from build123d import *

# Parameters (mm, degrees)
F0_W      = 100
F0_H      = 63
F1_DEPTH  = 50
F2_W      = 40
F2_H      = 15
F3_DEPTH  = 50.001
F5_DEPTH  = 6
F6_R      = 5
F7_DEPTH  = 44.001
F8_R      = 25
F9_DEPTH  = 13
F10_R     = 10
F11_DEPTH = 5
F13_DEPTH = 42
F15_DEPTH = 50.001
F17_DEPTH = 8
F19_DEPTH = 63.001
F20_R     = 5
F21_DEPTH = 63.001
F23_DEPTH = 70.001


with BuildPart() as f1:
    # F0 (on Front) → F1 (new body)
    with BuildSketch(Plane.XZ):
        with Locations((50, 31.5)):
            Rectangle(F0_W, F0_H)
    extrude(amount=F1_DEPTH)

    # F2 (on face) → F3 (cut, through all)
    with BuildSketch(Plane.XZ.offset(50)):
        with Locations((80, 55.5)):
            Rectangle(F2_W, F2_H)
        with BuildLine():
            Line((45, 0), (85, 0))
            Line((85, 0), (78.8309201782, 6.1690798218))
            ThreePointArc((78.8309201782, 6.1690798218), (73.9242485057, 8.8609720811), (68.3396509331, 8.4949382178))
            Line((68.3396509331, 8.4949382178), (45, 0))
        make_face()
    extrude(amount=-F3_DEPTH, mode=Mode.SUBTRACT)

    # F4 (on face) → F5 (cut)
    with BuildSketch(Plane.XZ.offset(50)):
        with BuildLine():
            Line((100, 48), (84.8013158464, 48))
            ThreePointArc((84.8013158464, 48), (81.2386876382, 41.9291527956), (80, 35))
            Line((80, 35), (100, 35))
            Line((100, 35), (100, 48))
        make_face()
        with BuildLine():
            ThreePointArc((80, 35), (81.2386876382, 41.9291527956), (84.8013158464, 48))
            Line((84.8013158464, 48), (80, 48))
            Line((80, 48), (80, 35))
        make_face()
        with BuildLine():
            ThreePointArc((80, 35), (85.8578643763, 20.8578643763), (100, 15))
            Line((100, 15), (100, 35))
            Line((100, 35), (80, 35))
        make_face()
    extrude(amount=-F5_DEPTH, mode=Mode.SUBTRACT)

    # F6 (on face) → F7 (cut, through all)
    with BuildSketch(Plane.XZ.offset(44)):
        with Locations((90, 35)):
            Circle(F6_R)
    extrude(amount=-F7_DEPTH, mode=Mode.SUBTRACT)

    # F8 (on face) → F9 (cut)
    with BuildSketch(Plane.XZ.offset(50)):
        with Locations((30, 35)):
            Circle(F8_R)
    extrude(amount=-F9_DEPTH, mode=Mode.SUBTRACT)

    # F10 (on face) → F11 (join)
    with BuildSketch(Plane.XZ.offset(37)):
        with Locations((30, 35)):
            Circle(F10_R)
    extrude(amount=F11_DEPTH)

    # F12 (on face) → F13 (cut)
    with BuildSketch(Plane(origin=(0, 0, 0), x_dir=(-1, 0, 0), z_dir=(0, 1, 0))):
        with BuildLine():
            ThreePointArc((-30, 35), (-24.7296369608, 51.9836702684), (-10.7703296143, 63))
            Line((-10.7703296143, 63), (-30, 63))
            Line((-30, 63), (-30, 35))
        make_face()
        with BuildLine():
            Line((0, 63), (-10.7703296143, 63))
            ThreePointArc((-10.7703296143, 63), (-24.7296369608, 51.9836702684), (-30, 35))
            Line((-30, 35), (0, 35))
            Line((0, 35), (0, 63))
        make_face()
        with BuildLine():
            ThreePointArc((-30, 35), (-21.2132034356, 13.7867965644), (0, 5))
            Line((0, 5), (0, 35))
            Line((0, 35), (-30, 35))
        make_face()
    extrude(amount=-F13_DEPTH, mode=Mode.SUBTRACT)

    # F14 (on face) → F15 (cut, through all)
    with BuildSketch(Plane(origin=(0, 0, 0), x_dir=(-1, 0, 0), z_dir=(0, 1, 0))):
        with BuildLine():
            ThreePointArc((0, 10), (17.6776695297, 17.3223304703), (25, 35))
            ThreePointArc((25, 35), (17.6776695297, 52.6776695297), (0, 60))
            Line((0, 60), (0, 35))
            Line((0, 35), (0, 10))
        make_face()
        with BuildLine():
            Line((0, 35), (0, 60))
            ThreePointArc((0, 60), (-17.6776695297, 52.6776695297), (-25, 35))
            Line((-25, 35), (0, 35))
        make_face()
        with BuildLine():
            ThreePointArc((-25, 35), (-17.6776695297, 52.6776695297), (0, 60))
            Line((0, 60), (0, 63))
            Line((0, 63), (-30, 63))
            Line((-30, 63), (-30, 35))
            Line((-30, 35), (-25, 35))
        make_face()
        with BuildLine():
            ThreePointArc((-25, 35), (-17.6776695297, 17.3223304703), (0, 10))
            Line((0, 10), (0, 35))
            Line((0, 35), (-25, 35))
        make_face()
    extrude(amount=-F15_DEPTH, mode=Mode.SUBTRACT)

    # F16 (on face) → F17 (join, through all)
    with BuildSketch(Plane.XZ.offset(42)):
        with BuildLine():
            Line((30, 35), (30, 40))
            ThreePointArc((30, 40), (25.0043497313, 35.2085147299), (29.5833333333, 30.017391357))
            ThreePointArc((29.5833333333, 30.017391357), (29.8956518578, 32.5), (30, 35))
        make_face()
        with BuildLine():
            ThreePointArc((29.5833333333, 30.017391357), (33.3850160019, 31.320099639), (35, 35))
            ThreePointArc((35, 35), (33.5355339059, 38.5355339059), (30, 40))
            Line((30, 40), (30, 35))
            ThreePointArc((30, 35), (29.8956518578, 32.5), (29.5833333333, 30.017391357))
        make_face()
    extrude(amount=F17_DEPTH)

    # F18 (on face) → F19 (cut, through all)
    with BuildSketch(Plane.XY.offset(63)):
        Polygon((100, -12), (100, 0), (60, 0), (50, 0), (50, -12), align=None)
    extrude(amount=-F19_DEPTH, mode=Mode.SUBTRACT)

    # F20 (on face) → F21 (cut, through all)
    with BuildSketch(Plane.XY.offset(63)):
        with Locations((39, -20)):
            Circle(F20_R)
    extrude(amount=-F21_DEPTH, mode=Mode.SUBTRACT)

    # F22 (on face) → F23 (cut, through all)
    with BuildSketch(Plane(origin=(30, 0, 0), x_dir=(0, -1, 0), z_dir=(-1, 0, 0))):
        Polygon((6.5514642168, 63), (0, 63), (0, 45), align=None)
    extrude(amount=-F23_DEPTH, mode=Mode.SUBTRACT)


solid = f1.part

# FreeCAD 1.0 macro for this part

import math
import FreeCAD as App
import Part
import Sketcher
Q = App.Units.Quantity

doc = App.newDocument("Part")
body = doc.addObject("PartDesign::Body", "Body")

sketch1 = body.newObject("Sketcher::SketchObject", "Sketch")
sketch1.AttachmentSupport = (doc.getObject("XZ_Plane"), [""])
sketch1.MapMode = "FlatFace"
sketch1.addGeometry([
    Part.LineSegment(App.Vector(0, 63, 0), App.Vector(0, 0, 0)),
    Part.LineSegment(App.Vector(0, 0, 0), App.Vector(100, 0, 0)),
    Part.LineSegment(App.Vector(100, 0, 0), App.Vector(100, 63, 0)),
    Part.LineSegment(App.Vector(100, 63, 0), App.Vector(0, 63, 0)),
], False)
sketch1.addConstraint([
    Sketcher.Constraint("Coincident", 0, 2, 1, 1),
    Sketcher.Constraint("Coincident", 1, 2, 2, 1),
    Sketcher.Constraint("Coincident", 2, 2, 3, 1),
    Sketcher.Constraint("Coincident", 3, 2, 0, 1),
    Sketcher.Constraint("Vertical", 0),
    Sketcher.Constraint("Horizontal", 1),
    Sketcher.Constraint("Vertical", 2),
    Sketcher.Constraint("Horizontal", 3),
    Sketcher.Constraint("Coincident", 0, 2, -1, 1),
    Sketcher.Constraint("DistanceX", 1, 1, 1, 2, Q("100 mm")),
    Sketcher.Constraint("DistanceY", 0, 2, 0, 1, Q("63 mm")),
])
pad1 = body.newObject("PartDesign::Pad", "Pad")
pad1.Profile = sketch1
pad1.Length = 50

sketch2 = body.newObject("Sketcher::SketchObject", "Sketch001")
sketch2.AttachmentSupport = (doc.getObject("XZ_Plane"), [""])
sketch2.MapMode = "FlatFace"
sketch2.AttachmentOffset = App.Placement(App.Vector(0, 0, 50), App.Rotation())
sketch2.addGeometry([
    Part.LineSegment(App.Vector(60, 63, 0), App.Vector(60, 48, 0)),
    Part.LineSegment(App.Vector(60, 48, 0), App.Vector(100, 48, 0)),
    Part.LineSegment(App.Vector(100, 48, 0), App.Vector(100, 63, 0)),
    Part.LineSegment(App.Vector(100, 63, 0), App.Vector(60, 63, 0)),
    Part.LineSegment(App.Vector(45, 0, 0), App.Vector(85, 0, 0)),
    Part.LineSegment(App.Vector(85, 0, 0), App.Vector(79, 6, 0)),
    Part.ArcOfCircle(Part.Circle(App.Vector(72, -1, 0), App.Vector(0, 0, 1), 10), math.radians(45), math.radians(110)),
    Part.LineSegment(App.Vector(68, 8, 0), App.Vector(45, 0, 0)),
], False)
sketch2.addConstraint([
    Sketcher.Constraint("Coincident", 0, 2, 1, 1),
    Sketcher.Constraint("Coincident", 1, 2, 2, 1),
    Sketcher.Constraint("Coincident", 2, 2, 3, 1),
    Sketcher.Constraint("Coincident", 3, 2, 0, 1),
    Sketcher.Constraint("Coincident", 4, 2, 5, 1),
    Sketcher.Constraint("Tangent", 5, 2, 6, 1),
    Sketcher.Constraint("Tangent", 6, 2, 7, 1),
    Sketcher.Constraint("Coincident", 7, 2, 4, 1),
    Sketcher.Constraint("Vertical", 0),
    Sketcher.Constraint("Horizontal", 1),
    Sketcher.Constraint("Vertical", 2),
    Sketcher.Constraint("Horizontal", 3),
    Sketcher.Constraint("Horizontal", 4),
    Sketcher.Constraint("PointOnObject", 4, 2, -1),
    Sketcher.Constraint("Equal", 3, 4),
    Sketcher.Constraint("Radius", 6, Q("10 mm")),
    Sketcher.Constraint("DistanceX", 1, 1, 1, 2, Q("40 mm")),
    Sketcher.Constraint("DistanceY", 0, 2, 0, 1, Q("15 mm")),
    Sketcher.Constraint("Angle", 5, Q("135 deg")),
    Sketcher.Constraint("Angle", 7, Q("-160 deg")),
    Sketcher.Constraint("DistanceX", -1, 1, 0, 2, Q("60 mm")),
    Sketcher.Constraint("DistanceY", -1, 1, 0, 2, Q("48 mm")),
    Sketcher.Constraint("DistanceX", -1, 1, 4, 2, Q("85 mm")),
])
pocket1 = body.newObject("PartDesign::Pocket", "Pocket")
pocket1.Profile = sketch2
pocket1.Type = "ThroughAll"

sketch3 = body.newObject("Sketcher::SketchObject", "Sketch002")
sketch3.AttachmentSupport = (doc.getObject("XZ_Plane"), [""])
sketch3.MapMode = "FlatFace"
sketch3.AttachmentOffset = App.Placement(App.Vector(0, 0, 50), App.Rotation())
sketch3.addGeometry([
    Part.LineSegment(App.Vector(100, 48, 0), App.Vector(80, 48, 0)),
    Part.LineSegment(App.Vector(80, 48, 0), App.Vector(80, 35, 0)),
    Part.ArcOfCircle(Part.Circle(App.Vector(100, 35, 0), App.Vector(0, 0, 1), 20), math.radians(180), math.radians(270)),
    Part.LineSegment(App.Vector(100, 15, 0), App.Vector(100, 48, 0)),
], False)
sketch3.addConstraint([
    Sketcher.Constraint("Coincident", 0, 2, 1, 1),
    Sketcher.Constraint("Tangent", 1, 2, 2, 1),
    Sketcher.Constraint("Coincident", 2, 2, 3, 1),
    Sketcher.Constraint("Coincident", 3, 2, 0, 1),
    Sketcher.Constraint("Horizontal", 0),
    Sketcher.Constraint("Vertical", 1),
    Sketcher.Constraint("Vertical", 3),
    Sketcher.Constraint("Radius", 2, Q("20 mm")),
    Sketcher.Constraint("DistanceX", 0, 2, 0, 1, Q("20 mm")),
    Sketcher.Constraint("DistanceY", 1, 2, 1, 1, Q("13 mm")),
    Sketcher.Constraint("DistanceX", -1, 1, 2, 3, Q("100 mm")),
    Sketcher.Constraint("DistanceY", -1, 1, 2, 3, Q("35 mm")),
])
pocket2 = body.newObject("PartDesign::Pocket", "Pocket001")
pocket2.Profile = sketch3
pocket2.Length = 6

sketch4 = body.newObject("Sketcher::SketchObject", "Sketch003")
sketch4.AttachmentSupport = (doc.getObject("XZ_Plane"), [""])
sketch4.MapMode = "FlatFace"
sketch4.AttachmentOffset = App.Placement(App.Vector(0, 0, 44), App.Rotation())
sketch4.addGeometry(Part.Circle(App.Vector(90, 35, 0), App.Vector(0, 0, 1), 5), False)
sketch4.addConstraint([
    Sketcher.Constraint("Diameter", 0, Q("10 mm")),
    Sketcher.Constraint("DistanceX", -1, 1, 0, 3, Q("90 mm")),
    Sketcher.Constraint("DistanceY", -1, 1, 0, 3, Q("35 mm")),
])
pocket3 = body.newObject("PartDesign::Pocket", "Pocket002")
pocket3.Profile = sketch4
pocket3.Type = "ThroughAll"

sketch5 = body.newObject("Sketcher::SketchObject", "Sketch004")
sketch5.AttachmentSupport = (doc.getObject("XZ_Plane"), [""])
sketch5.MapMode = "FlatFace"
sketch5.AttachmentOffset = App.Placement(App.Vector(0, 0, 50), App.Rotation())
sketch5.addGeometry(Part.Circle(App.Vector(30, 35, 0), App.Vector(0, 0, 1), 25), False)
sketch5.addConstraint([
    Sketcher.Constraint("Diameter", 0, Q("50 mm")),
    Sketcher.Constraint("DistanceX", -1, 1, 0, 3, Q("30 mm")),
    Sketcher.Constraint("DistanceY", -1, 1, 0, 3, Q("35 mm")),
])
pocket4 = body.newObject("PartDesign::Pocket", "Pocket003")
pocket4.Profile = sketch5
pocket4.Length = 13

sketch6 = body.newObject("Sketcher::SketchObject", "Sketch005")
sketch6.AttachmentSupport = (doc.getObject("XZ_Plane"), [""])
sketch6.MapMode = "FlatFace"
sketch6.AttachmentOffset = App.Placement(App.Vector(0, 0, 37), App.Rotation())
sketch6.addGeometry(Part.Circle(App.Vector(30, 35, 0), App.Vector(0, 0, 1), 10), False)
sketch6.addConstraint([
    Sketcher.Constraint("Diameter", 0, Q("20 mm")),
    Sketcher.Constraint("DistanceX", -1, 1, 0, 3, Q("30 mm")),
    Sketcher.Constraint("DistanceY", -1, 1, 0, 3, Q("35 mm")),
])
pad2 = body.newObject("PartDesign::Pad", "Pad001")
pad2.Profile = sketch6
pad2.Length = 5

sketch7 = body.newObject("Sketcher::SketchObject", "Sketch006")
sketch7.AttachmentSupport = (doc.getObject("XZ_Plane"), [""])
sketch7.MapMode = "FlatFace"
sketch7.addGeometry([
    Part.LineSegment(App.Vector(30, 63, 0), App.Vector(30, 35, 0)),
    Part.ArcOfCircle(Part.Circle(App.Vector(0, 35, 0), App.Vector(0, 0, 1), 30), math.radians(-90), math.radians(0)),
    Part.LineSegment(App.Vector(0, 5, 0), App.Vector(0, 63, 0)),
    Part.LineSegment(App.Vector(0, 63, 0), App.Vector(30, 63, 0)),
], False)
sketch7.addConstraint([
    Sketcher.Constraint("Tangent", 0, 2, 1, 2),
    Sketcher.Constraint("Coincident", 1, 1, 2, 1),
    Sketcher.Constraint("Coincident", 2, 2, 3, 1),
    Sketcher.Constraint("Coincident", 3, 2, 0, 1),
    Sketcher.Constraint("Vertical", 0),
    Sketcher.Constraint("Vertical", 2),
    Sketcher.Constraint("Horizontal", 3),
    Sketcher.Constraint("PointOnObject", 1, 3, -2),
    Sketcher.Constraint("PointOnObject", 1, 1, -2),
    Sketcher.Constraint("Radius", 1, Q("30 mm")),
    Sketcher.Constraint("DistanceY", 0, 2, 0, 1, Q("28 mm")),
    Sketcher.Constraint("DistanceY", -1, 1, 1, 3, Q("35 mm")),
])
pocket5 = body.newObject("PartDesign::Pocket", "Pocket004")
pocket5.Profile = sketch7
pocket5.Length = 42
pocket5.Reversed = True

sketch8 = body.newObject("Sketcher::SketchObject", "Sketch007")
sketch8.AttachmentSupport = (doc.getObject("XZ_Plane"), [""])
sketch8.MapMode = "FlatFace"
sketch8.addGeometry([
    Part.ArcOfCircle(Part.Circle(App.Vector(0, 35, 0), App.Vector(0, 0, 1), 25), math.radians(180), math.radians(270)),
    Part.ArcOfCircle(Part.Circle(App.Vector(0, 35, 0), App.Vector(0, 0, 1), 25), math.radians(90), math.radians(180)),
    Part.LineSegment(App.Vector(0, 60, 0), App.Vector(0, 63, 0)),
    Part.LineSegment(App.Vector(0, 63, 0), App.Vector(30, 63, 0)),
    Part.LineSegment(App.Vector(30, 63, 0), App.Vector(30, 35, 0)),
    Part.LineSegment(App.Vector(30, 35, 0), App.Vector(25, 35, 0)),
    Part.ArcOfCircle(Part.Circle(App.Vector(0, 35, 0), App.Vector(0, 0, 1), 25), math.radians(-90), math.radians(0)),
], False)
sketch8.addConstraint([
    Sketcher.Constraint("Tangent", 0, 1, 1, 2),
    Sketcher.Constraint("Coincident", 1, 1, 2, 1),
    Sketcher.Constraint("Coincident", 2, 2, 3, 1),
    Sketcher.Constraint("Coincident", 3, 2, 4, 1),
    Sketcher.Constraint("Coincident", 4, 2, 5, 1),
    Sketcher.Constraint("Coincident", 5, 2, 6, 2),
    Sketcher.Constraint("Tangent", 6, 1, 0, 2),
    Sketcher.Constraint("Vertical", 2),
    Sketcher.Constraint("Horizontal", 3),
    Sketcher.Constraint("Vertical", 4),
    Sketcher.Constraint("Horizontal", 5),
    Sketcher.Constraint("Equal", 0, 1),
    Sketcher.Constraint("Equal", 1, 6),
    Sketcher.Constraint("Symmetric", 0, 1, 5, 2, -2),
    Sketcher.Constraint("PointOnObject", 1, 1, -2),
    Sketcher.Constraint("PointOnObject", 6, 1, -2),
    Sketcher.Constraint("Horizontal", 6, 3, 0, 1),
    Sketcher.Constraint("Radius", 0, Q("25 mm")),
    Sketcher.Constraint("DistanceX", 3, 1, 3, 2, Q("30 mm")),
    Sketcher.Constraint("DistanceY", 2, 1, 2, 2, Q("3 mm")),
    Sketcher.Constraint("DistanceY", -1, 1, 0, 3, Q("35 mm")),
])
pocket6 = body.newObject("PartDesign::Pocket", "Pocket005")
pocket6.Profile = sketch8
pocket6.Type = "ThroughAll"
pocket6.Reversed = True

sketch9 = body.newObject("Sketcher::SketchObject", "Sketch008")
sketch9.AttachmentSupport = (doc.getObject("XZ_Plane"), [""])
sketch9.MapMode = "FlatFace"
sketch9.AttachmentOffset = App.Placement(App.Vector(0, 0, 42), App.Rotation())
sketch9.addGeometry([
    Part.ArcOfCircle(Part.Circle(App.Vector(30, 35, 0), App.Vector(0, 0, 1), 5), math.radians(90), math.radians(265)),
    Part.ArcOfCircle(Part.Circle(App.Vector(30, 35, 0), App.Vector(0, 0, 1), 5), math.radians(-95), math.radians(0)),
    Part.ArcOfCircle(Part.Circle(App.Vector(30, 35, 0), App.Vector(0, 0, 1), 5), math.radians(0), math.radians(90)),
], False)
sketch9.addConstraint([
    Sketcher.Constraint("Tangent", 0, 2, 1, 1),
    Sketcher.Constraint("Tangent", 1, 2, 2, 1),
    Sketcher.Constraint("Tangent", 2, 2, 0, 1),
    Sketcher.Constraint("Horizontal", 2, 3, 1, 2),
    Sketcher.Constraint("Vertical", 1, 3, 2, 2),
    Sketcher.Constraint("Radius", 0, Q("5 mm")),
    Sketcher.Constraint("DistanceX", -1, 1, 0, 3, Q("30 mm")),
    Sketcher.Constraint("DistanceY", -1, 1, 0, 3, Q("35 mm")),
    Sketcher.Constraint("DistanceY", -1, 1, 0, 2, Q("30.017391 mm")),
])
pad3 = body.newObject("PartDesign::Pad", "Pad002")
pad3.Profile = sketch9
pad3.Length = 8

sketch10 = body.newObject("Sketcher::SketchObject", "Sketch009")
sketch10.AttachmentSupport = (doc.getObject("XY_Plane"), [""])
sketch10.MapMode = "FlatFace"
sketch10.AttachmentOffset = App.Placement(App.Vector(0, 0, 63), App.Rotation())
sketch10.addGeometry([
    Part.LineSegment(App.Vector(100, -12, 0), App.Vector(100, 0, 0)),
    Part.LineSegment(App.Vector(100, 0, 0), App.Vector(50, 0, 0)),
    Part.LineSegment(App.Vector(50, 0, 0), App.Vector(50, -12, 0)),
    Part.LineSegment(App.Vector(50, -12, 0), App.Vector(100, -12, 0)),
], False)
sketch10.addConstraint([
    Sketcher.Constraint("Coincident", 0, 2, 1, 1),
    Sketcher.Constraint("Coincident", 1, 2, 2, 1),
    Sketcher.Constraint("Coincident", 2, 2, 3, 1),
    Sketcher.Constraint("Coincident", 3, 2, 0, 1),
    Sketcher.Constraint("Vertical", 0),
    Sketcher.Constraint("Horizontal", 1),
    Sketcher.Constraint("Vertical", 2),
    Sketcher.Constraint("Horizontal", 3),
    Sketcher.Constraint("PointOnObject", 0, 2, -1),
    Sketcher.Constraint("DistanceX", 1, 2, 1, 1, Q("50 mm")),
    Sketcher.Constraint("DistanceY", 0, 1, 0, 2, Q("12 mm")),
    Sketcher.Constraint("DistanceX", -1, 1, 0, 2, Q("100 mm")),
])
pocket7 = body.newObject("PartDesign::Pocket", "Pocket006")
pocket7.Profile = sketch10
pocket7.Type = "ThroughAll"

sketch11 = body.newObject("Sketcher::SketchObject", "Sketch010")
sketch11.AttachmentSupport = (doc.getObject("XY_Plane"), [""])
sketch11.MapMode = "FlatFace"
sketch11.AttachmentOffset = App.Placement(App.Vector(0, 0, 63), App.Rotation())
sketch11.addGeometry(Part.Circle(App.Vector(39, -20, 0), App.Vector(0, 0, 1), 5), False)
sketch11.addConstraint([
    Sketcher.Constraint("Diameter", 0, Q("10 mm")),
    Sketcher.Constraint("DistanceX", -1, 1, 0, 3, Q("39 mm")),
    Sketcher.Constraint("DistanceY", 0, 3, -1, 1, Q("20 mm")),
])
pocket8 = body.newObject("PartDesign::Pocket", "Pocket007")
pocket8.Profile = sketch11
pocket8.Type = "ThroughAll"

sketch12 = body.newObject("Sketcher::SketchObject", "Sketch011")
sketch12.AttachmentSupport = (doc.getObject("YZ_Plane"), [""])
sketch12.MapMode = "FlatFace"
sketch12.AttachmentOffset = App.Placement(App.Vector(0, 0, 30), App.Rotation())
sketch12.addGeometry([
    Part.LineSegment(App.Vector(-7, 63, 0), App.Vector(0, 63, 0)),
    Part.LineSegment(App.Vector(0, 63, 0), App.Vector(0, 45, 0)),
    Part.LineSegment(App.Vector(0, 45, 0), App.Vector(-7, 63, 0)),
], False)
sketch12.addConstraint([
    Sketcher.Constraint("Coincident", 0, 2, 1, 1),
    Sketcher.Constraint("Coincident", 1, 2, 2, 1),
    Sketcher.Constraint("Coincident", 2, 2, 0, 1),
    Sketcher.Constraint("Horizontal", 0),
    Sketcher.Constraint("Vertical", 1),
    Sketcher.Constraint("PointOnObject", 0, 2, -2),
    Sketcher.Constraint("DistanceY", 1, 2, 1, 1, Q("18 mm")),
    Sketcher.Constraint("Angle", 2, Q("110 deg")),
    Sketcher.Constraint("DistanceY", -1, 1, 0, 2, Q("63 mm")),
])
pocket9 = body.newObject("PartDesign::Pocket", "Pocket008")
pocket9.Profile = sketch12
pocket9.Type = "ThroughAll"
pocket9.Reversed = True

doc.recompute()
